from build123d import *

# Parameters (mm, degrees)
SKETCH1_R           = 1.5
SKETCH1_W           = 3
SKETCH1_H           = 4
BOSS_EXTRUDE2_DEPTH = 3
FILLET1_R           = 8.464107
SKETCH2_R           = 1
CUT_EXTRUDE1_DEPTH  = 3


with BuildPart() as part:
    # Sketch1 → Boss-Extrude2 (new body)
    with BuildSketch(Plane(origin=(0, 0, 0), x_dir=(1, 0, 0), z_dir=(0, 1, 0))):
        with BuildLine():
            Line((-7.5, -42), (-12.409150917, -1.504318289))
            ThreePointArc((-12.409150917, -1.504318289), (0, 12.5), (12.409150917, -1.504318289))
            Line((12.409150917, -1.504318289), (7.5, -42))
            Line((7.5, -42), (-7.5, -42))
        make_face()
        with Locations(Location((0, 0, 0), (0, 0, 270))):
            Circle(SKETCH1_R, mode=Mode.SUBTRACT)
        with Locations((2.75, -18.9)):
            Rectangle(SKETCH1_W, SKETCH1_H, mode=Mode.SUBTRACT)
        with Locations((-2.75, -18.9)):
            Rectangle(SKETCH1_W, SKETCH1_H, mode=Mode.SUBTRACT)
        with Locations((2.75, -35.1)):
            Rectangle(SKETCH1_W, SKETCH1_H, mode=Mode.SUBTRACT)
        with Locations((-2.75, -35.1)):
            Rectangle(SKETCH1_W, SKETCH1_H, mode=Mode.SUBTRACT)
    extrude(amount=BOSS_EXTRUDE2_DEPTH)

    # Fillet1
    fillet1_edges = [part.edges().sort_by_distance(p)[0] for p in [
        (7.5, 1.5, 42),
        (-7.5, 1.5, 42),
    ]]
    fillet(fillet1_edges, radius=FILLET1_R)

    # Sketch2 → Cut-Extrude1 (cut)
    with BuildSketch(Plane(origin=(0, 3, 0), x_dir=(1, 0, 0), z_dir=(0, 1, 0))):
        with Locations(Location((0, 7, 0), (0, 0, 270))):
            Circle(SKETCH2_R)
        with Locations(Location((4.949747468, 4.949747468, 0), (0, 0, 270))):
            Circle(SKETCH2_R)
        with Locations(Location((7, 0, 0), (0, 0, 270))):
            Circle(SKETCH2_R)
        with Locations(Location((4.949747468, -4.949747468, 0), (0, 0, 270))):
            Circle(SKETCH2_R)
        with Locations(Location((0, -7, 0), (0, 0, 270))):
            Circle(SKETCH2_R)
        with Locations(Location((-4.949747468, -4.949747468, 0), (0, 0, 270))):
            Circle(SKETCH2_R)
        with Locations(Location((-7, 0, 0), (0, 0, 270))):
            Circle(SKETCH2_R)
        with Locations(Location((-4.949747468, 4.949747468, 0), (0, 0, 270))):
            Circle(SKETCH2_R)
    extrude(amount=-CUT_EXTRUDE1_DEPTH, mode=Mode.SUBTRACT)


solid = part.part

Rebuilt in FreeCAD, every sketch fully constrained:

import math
import FreeCAD as App
import Part
import Sketcher

V = App.Vector


def edges_at(feature, points):
    """Names of the edges that pass closest to the given points."""
    edges = feature.Shape.Edges
    near = lambda p: min(range(len(edges)), key=lambda i: edges[i].distToShape(Part.Vertex(*p))[0])
    return sorted({f"Edge{near(p) + 1}" for p in points})

doc = App.newDocument("Part")
body = doc.addObject("PartDesign::Body", "Body")

sketch1 = body.newObject("Sketcher::SketchObject", "Sketch")
sketch1.AttachmentSupport = (doc.getObject("XZ_Plane"), [""])
sketch1.MapMode = "FlatFace"
sketch1.addGeometry([
    Part.LineSegment(V(-12.409151, 1.504318, 0), V(-7.5, 42, 0)),
    Part.LineSegment(V(-7.5, 42, 0), V(7.5, 42, 0)),
    Part.LineSegment(V(7.5, 42, 0), V(12.409151, 1.504318, 0)),
    Part.ArcOfCircle(Part.Circle(V(0, 0, 0), V(0, 0, 1), 12.5), math.radians(173.087959), math.radians(366.912041)),
    Part.LineSegment(V(1.25, 37.1, 0), V(1.25, 33.1, 0)),
    Part.LineSegment(V(1.25, 33.1, 0), V(4.25, 33.1, 0)),
    Part.LineSegment(V(4.25, 33.1, 0), V(4.25, 37.1, 0)),
    Part.LineSegment(V(4.25, 37.1, 0), V(1.25, 37.1, 0)),
    Part.LineSegment(V(1.25, 20.9, 0), V(1.25, 16.9, 0)),
    Part.LineSegment(V(1.25, 16.9, 0), V(4.25, 16.9, 0)),
    Part.LineSegment(V(4.25, 16.9, 0), V(4.25, 20.9, 0)),
    Part.LineSegment(V(4.25, 20.9, 0), V(1.25, 20.9, 0)),
    Part.LineSegment(V(-4.25, 37.1, 0), V(-4.25, 33.1, 0)),
    Part.LineSegment(V(-4.25, 33.1, 0), V(-1.25, 33.1, 0)),
    Part.LineSegment(V(-1.25, 33.1, 0), V(-1.25, 37.1, 0)),
    Part.LineSegment(V(-1.25, 37.1, 0), V(-4.25, 37.1, 0)),
    Part.LineSegment(V(-4.25, 20.9, 0), V(-4.25, 16.9, 0)),
    Part.LineSegment(V(-4.25, 16.9, 0), V(-1.25, 16.9, 0)),
    Part.LineSegment(V(-1.25, 16.9, 0), V(-1.25, 20.9, 0)),
    Part.LineSegment(V(-1.25, 20.9, 0), V(-4.25, 20.9, 0)),
    Part.Circle(V(0, 0, 0), V(0, 0, 1), 1.5),
], False)
sketch1.addConstraint([
    Sketcher.Constraint("Coincident", 0, 2, 1, 1),
    Sketcher.Constraint("Coincident", 1, 2, 2, 1),
    Sketcher.Constraint("Tangent", 2, 2, 3, 2),
    Sketcher.Constraint("Tangent", 3, 1, 0, 1),
    Sketcher.Constraint("Coincident", 4, 2, 5, 1),
    Sketcher.Constraint("Coincident", 5, 2, 6, 1),
    Sketcher.Constraint("Coincident", 6, 2, 7, 1),
    Sketcher.Constraint("Coincident", 7, 2, 4, 1),
    Sketcher.Constraint("Coincident", 8, 2, 9, 1),
    Sketcher.Constraint("Coincident", 9, 2, 10, 1),
    Sketcher.Constraint("Coincident", 10, 2, 11, 1),
    Sketcher.Constraint("Coincident", 11, 2, 8, 1),
    Sketcher.Constraint("Coincident", 12, 2, 13, 1),
    Sketcher.Constraint("Coincident", 13, 2, 14, 1),
    Sketcher.Constraint("Coincident", 14, 2, 15, 1),
    Sketcher.Constraint("Coincident", 15, 2, 12, 1),
    Sketcher.Constraint("Coincident", 16, 2, 17, 1),
    Sketcher.Constraint("Coincident", 17, 2, 18, 1),
    Sketcher.Constraint("Coincident", 18, 2, 19, 1),
    Sketcher.Constraint("Coincident", 19, 2, 16, 1),
    Sketcher.Constraint("Horizontal", 1),
    Sketcher.Constraint("Vertical", 4),
    Sketcher.Constraint("Horizontal", 5),
    Sketcher.Constraint("Vertical", 6),
    Sketcher.Constraint("Horizontal", 7),
    Sketcher.Constraint("Vertical", 8),
    Sketcher.Constraint("Horizontal", 9),
    Sketcher.Constraint("Vertical", 10),
    Sketcher.Constraint("Horizontal", 11),
    Sketcher.Constraint("Vertical", 12),
    Sketcher.Constraint("Horizontal", 13),
    Sketcher.Constraint("Vertical", 14),
    Sketcher.Constraint("Horizontal", 15),
    Sketcher.Constraint("Vertical", 16),
    Sketcher.Constraint("Horizontal", 17),
    Sketcher.Constraint("Vertical", 18),
    Sketcher.Constraint("Horizontal", 19),
    Sketcher.Constraint("Coincident", 3, 3, -1, 1),
    Sketcher.Constraint("Coincident", 20, 3, -1, 1),
    Sketcher.Constraint("Symmetric", 5, 2, 12, 2, -2),
    Sketcher.Constraint("Symmetric", 7, 2, 14, 2, -2),
    Sketcher.Constraint("Symmetric", 9, 2, 16, 2, -2),
    Sketcher.Constraint("Symmetric", 11, 2, 18, 2, -2),
    Sketcher.Constraint("Horizontal", 2, 2, 3, 1),
    Sketcher.Constraint("Vertical", 7, 2, 8, 2),
    Sketcher.Constraint("Vertical", 6, 2, 9, 2),
    Sketcher.Constraint("Equal", 6, 8),
    Sketcher.Constraint("Diameter", 20, 3.0),
    Sketcher.Constraint("Radius", 3, 12.5),
    Sketcher.Constraint("DistanceX", 1, 1, 1, 2, 15.0),
    Sketcher.Constraint("DistanceX", 5, 1, 5, 2, 3.0),
    Sketcher.Constraint("DistanceY", 4, 2, 4, 1, 4.0),
    Sketcher.Constraint("DistanceY", -1, 1, 0, 2, 42.0),
    Sketcher.Constraint("DistanceY", -1, 1, 4, 2, 33.1),
    Sketcher.Constraint("DistanceY", -1, 1, 8, 2, 16.9),
    Sketcher.Constraint("DistanceX", 12, 2, 4, 2, 5.5),
])
pad1 = body.newObject("PartDesign::Pad", "Pad")
pad1.Profile = sketch1
pad1.Length = 3
pad1.Reversed = True
doc.recompute()

fillet = body.newObject("PartDesign::Fillet", "Fillet")
fillet.Base = (pad1, edges_at(pad1, [(7.5, 1.5, 42), (-7.5, 1.5, 42)]))
fillet.Radius = 8.464107

sketch2 = body.newObject("Sketcher::SketchObject", "Sketch001")
sketch2.AttachmentSupport = (doc.getObject("XZ_Plane"), [""])
sketch2.MapMode = "FlatFace"
sketch2.AttachmentOffset = App.Placement(V(0, 0, -3), App.Rotation())
sketch2.addGeometry([
    Part.Circle(V(0, -7, 0), V(0, 0, 1), 1),
    Part.Circle(V(4.949747, -4.949747, 0), V(0, 0, 1), 1),
    Part.Circle(V(7, 0, 0), V(0, 0, 1), 1),
    Part.Circle(V(4.949747, 4.949747, 0), V(0, 0, 1), 1),
    Part.Circle(V(0, 7, 0), V(0, 0, 1), 1),
    Part.Circle(V(-4.949747, 4.949747, 0), V(0, 0, 1), 1),
    Part.Circle(V(-7, 0, 0), V(0, 0, 1), 1),
    Part.Circle(V(-4.949747, -4.949747, 0), V(0, 0, 1), 1),
], False)
sketch2.addConstraint([
    Sketcher.Constraint("Equal", 0, 1),
    Sketcher.Constraint("Equal", 1, 2),
    Sketcher.Constraint("Equal", 2, 3),
    Sketcher.Constraint("Equal", 3, 4),
    Sketcher.Constraint("Equal", 4, 5),
    Sketcher.Constraint("Equal", 5, 6),
    Sketcher.Constraint("Equal", 6, 7),
    Sketcher.Constraint("Symmetric", 0, 3, 4, 3, -1, 1),
    Sketcher.Constraint("Symmetric", 1, 3, 5, 3, -1, 1),
    Sketcher.Constraint("Symmetric", 2, 3, 6, 3, -1, 1),
    Sketcher.Constraint("Symmetric", 3, 3, 7, 3, -1, 1),
    Sketcher.Constraint("Symmetric", 3, 3, 5, 3, -2),
    Sketcher.Constraint("PointOnObject", 0, 3, -2),
    Sketcher.Constraint("PointOnObject", 2, 3, -1),
    Sketcher.Constraint("Diameter", 0, 2.0),
    Sketcher.Constraint("DistanceY", 0, 3, -1, 1, 7.0),
    Sketcher.Constraint("DistanceX", -1, 1, 2, 3, 7.0),
    Sketcher.Constraint("DistanceX", -1, 1, 1, 3, 4.949747),
    Sketcher.Constraint("DistanceY", 1, 3, -1, 1, 4.949747),
])
pocket1 = body.newObject("PartDesign::Pocket", "Pocket")
pocket1.Profile = sketch2
pocket1.Length = 3
pocket1.Reversed = True

doc.recompute()
